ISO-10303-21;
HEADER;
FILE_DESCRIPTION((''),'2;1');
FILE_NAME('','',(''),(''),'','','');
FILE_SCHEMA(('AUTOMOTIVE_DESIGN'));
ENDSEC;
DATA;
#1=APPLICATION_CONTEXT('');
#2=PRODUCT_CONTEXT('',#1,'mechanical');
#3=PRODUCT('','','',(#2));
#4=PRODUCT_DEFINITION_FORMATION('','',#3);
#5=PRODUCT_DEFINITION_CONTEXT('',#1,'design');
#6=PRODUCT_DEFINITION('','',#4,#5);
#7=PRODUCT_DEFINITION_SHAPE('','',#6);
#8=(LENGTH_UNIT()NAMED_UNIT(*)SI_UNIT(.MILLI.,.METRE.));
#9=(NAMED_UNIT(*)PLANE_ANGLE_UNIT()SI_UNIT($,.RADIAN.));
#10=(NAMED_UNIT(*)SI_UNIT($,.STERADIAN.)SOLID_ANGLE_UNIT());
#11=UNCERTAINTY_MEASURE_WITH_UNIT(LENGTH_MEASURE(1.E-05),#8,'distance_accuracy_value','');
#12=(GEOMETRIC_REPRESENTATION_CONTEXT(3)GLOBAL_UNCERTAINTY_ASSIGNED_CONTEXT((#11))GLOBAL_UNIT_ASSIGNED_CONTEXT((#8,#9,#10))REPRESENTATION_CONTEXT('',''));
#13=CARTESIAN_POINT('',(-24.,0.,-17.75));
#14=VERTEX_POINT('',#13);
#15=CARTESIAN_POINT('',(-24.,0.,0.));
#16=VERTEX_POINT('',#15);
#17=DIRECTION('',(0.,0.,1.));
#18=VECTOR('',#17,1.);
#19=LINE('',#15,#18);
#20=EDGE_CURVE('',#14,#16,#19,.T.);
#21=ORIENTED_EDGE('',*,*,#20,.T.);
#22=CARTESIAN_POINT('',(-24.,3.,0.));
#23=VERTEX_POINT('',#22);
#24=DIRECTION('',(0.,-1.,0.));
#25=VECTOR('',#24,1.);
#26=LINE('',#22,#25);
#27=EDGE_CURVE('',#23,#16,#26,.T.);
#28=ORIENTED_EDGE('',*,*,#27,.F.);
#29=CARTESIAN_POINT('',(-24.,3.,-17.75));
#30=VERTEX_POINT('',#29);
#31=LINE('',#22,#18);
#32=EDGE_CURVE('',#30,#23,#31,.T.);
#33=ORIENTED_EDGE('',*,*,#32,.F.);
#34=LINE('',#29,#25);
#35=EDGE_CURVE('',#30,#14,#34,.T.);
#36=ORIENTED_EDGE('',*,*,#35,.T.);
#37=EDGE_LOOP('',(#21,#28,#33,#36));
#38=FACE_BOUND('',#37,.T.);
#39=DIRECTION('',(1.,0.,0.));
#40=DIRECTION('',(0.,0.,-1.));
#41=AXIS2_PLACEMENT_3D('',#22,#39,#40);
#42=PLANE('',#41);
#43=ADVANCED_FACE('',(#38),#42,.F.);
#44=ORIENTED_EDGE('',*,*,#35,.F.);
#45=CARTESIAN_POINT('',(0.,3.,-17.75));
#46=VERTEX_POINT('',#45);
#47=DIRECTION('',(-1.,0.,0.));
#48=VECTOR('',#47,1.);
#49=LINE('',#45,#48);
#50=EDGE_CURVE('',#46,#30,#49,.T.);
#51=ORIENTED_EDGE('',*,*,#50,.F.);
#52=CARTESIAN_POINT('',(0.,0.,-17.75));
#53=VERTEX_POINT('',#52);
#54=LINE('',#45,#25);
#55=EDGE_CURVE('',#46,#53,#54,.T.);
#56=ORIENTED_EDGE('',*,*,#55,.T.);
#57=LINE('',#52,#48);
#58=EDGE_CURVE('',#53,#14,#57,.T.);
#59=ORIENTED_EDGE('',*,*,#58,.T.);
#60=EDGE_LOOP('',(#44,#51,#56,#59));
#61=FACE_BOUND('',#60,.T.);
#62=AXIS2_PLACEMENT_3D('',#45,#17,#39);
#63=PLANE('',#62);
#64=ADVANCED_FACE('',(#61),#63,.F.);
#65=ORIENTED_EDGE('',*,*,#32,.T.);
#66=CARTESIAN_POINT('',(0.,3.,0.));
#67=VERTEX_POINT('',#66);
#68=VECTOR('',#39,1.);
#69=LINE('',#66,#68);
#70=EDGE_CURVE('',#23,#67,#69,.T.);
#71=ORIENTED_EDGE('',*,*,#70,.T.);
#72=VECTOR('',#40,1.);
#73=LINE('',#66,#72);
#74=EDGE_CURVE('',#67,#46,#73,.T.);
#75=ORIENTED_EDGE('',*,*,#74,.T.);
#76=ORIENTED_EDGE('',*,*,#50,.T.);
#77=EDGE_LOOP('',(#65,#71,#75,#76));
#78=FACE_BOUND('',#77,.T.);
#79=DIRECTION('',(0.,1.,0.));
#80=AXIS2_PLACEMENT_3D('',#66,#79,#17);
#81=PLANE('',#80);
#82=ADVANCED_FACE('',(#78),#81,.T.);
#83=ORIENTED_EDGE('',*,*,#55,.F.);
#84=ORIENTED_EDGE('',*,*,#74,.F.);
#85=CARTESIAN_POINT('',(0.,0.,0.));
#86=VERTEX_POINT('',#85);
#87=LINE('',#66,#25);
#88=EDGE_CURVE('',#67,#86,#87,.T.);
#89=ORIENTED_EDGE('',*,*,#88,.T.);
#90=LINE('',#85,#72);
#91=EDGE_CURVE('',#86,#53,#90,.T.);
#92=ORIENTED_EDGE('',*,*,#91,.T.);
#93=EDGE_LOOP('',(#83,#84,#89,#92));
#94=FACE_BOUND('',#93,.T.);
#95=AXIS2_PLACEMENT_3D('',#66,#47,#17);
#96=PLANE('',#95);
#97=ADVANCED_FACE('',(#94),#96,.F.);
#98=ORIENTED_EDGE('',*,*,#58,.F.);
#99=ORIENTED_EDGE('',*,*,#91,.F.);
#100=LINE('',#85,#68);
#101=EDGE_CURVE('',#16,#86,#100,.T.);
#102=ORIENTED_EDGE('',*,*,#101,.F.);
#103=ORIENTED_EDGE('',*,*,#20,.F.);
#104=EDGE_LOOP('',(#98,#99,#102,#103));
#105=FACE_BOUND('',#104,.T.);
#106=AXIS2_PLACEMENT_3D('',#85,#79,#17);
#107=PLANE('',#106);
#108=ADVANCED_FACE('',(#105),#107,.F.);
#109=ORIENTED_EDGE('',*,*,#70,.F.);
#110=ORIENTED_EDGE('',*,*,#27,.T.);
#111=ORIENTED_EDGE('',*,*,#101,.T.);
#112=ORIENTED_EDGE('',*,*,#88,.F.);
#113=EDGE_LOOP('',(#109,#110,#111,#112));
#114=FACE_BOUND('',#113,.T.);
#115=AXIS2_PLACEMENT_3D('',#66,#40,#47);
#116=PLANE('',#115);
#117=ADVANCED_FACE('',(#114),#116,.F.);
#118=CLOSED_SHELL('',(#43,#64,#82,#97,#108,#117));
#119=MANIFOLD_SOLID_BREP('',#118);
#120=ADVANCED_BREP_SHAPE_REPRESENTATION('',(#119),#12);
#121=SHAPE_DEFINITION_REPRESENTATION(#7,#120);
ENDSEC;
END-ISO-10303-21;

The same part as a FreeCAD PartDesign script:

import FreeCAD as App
import Part
import Sketcher

V = App.Vector


def add_polygon(sketch, points):
    """Adds a closed chain of lines whose ends are joined by coincident constraints."""
    first, n = sketch.GeometryCount, len(points)
    for a, b in zip(points, points[1:] + points[:1]):
        sketch.addGeometry(Part.LineSegment(App.Vector(*a, 0), App.Vector(*b, 0)), False)
    for i in range(n):
        sketch.addConstraint(Sketcher.Constraint("Coincident", first + i, 2, first + (i + 1) % n, 1))

doc = App.newDocument("Part")
params = doc.addObject("Spreadsheet::Sheet", "Params")
for row, (alias, value) in enumerate([
    ("sketch1_width", "24 mm"),
    ("sketch1_height", "17.75 mm"),
    ("pad1_length", "3 mm"),
], start=1):
    params.set(f"A{row}", alias)
    params.set(f"B{row}", "=" + value)
    params.setAlias(f"B{row}", alias)

body = doc.addObject("PartDesign::Body", "Body")

# Sketch on XZ plane
sketch1 = body.newObject("Sketcher::SketchObject", "Sketch")
sketch1.AttachmentSupport = (doc.getObject("XZ_Plane"), [""])
sketch1.MapMode = "FlatFace"
add_polygon(sketch1, [(-24, -18), (-24, 0), (0, 0), (0, -18)])  # lines 0-3
sketch1.addConstraint([
    Sketcher.Constraint("Vertical", 0),
    Sketcher.Constraint("Horizontal", 1),
    Sketcher.Constraint("Vertical", 2),
    Sketcher.Constraint("Horizontal", 3),
    Sketcher.Constraint("Coincident", 1, 2, -1, 1),
    Sketcher.Constraint("DistanceX", 1, 1, 1, 2, 24.0),
    Sketcher.Constraint("DistanceY", 0, 1, 0, 2, 17.75),
])
sketch1.setExpression("Constraints[9]", "Params.sketch1_width")
sketch1.setExpression("Constraints[10]", "Params.sketch1_height")
pad1 = body.newObject("PartDesign::Pad", "Pad")
pad1.Profile = sketch1
pad1.setExpression("Length", "Params.pad1_length")
pad1.Reversed = True

doc.recompute()
